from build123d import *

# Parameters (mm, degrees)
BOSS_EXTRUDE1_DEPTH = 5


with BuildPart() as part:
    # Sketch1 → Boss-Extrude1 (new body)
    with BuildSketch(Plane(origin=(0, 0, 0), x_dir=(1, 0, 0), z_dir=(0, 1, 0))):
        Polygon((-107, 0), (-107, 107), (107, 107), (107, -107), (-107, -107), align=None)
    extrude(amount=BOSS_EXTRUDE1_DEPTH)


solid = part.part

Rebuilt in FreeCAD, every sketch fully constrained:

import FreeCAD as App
import Part
import Sketcher
from FreeCAD import Vector
Q = App.Units.Quantity


def add_polygon(sketch, points):
    """Adds a closed chain of lines whose ends are joined by coincident constraints."""
    first, n = sketch.GeometryCount, len(points)
    for a, b in zip(points, points[1:] + points[:1]):
        sketch.addGeometry(Part.LineSegment(App.Vector(*a, 0), App.Vector(*b, 0)), False)
    for i in range(n):
        sketch.addConstraint(Sketcher.Constraint("Coincident", first + i, 2, first + (i + 1) % n, 1))

doc = App.newDocument("Part")
params = doc.addObject("Spreadsheet::Sheet", "Params")
for row, (alias, value) in enumerate([
    ("sketch1_width", "214 mm"),
    ("pad1_length", "5 mm"),
], start=1):
    params.set(f"A{row}", alias)
    params.set(f"B{row}", "=" + value)
    params.setAlias(f"B{row}", alias)

body = doc.addObject("PartDesign::Body", "Body")

# Sketch on XZ plane
sketch1 = doc.addObject("Sketcher::SketchObject", "Sketch")
body.addObject(sketch1)
sketch1.AttachmentSupport = (doc.XZ_Plane, [""])
sketch1.MapMode = "FlatFace"
add_polygon(sketch1, [(-107, -107), (-107, 107), (107, 107), (107, -107)])  # lines 0-3
sketch1.addConstraint(Sketcher.Constraint("Vertical", 0))
sketch1.addConstraint(Sketcher.Constraint("Horizontal", 1))
sketch1.addConstraint(Sketcher.Constraint("Vertical", 2))
sketch1.addConstraint(Sketcher.Constraint("Horizontal", 3))
sketch1.addConstraint(Sketcher.Constraint("Symmetric", 0, 2, 2, 2, -1, 1))
sketch1.addConstraint(Sketcher.Constraint("Equal", 3, 0))
sketch1.addConstraint(Sketcher.Constraint("DistanceX", 1, 1, 1, 2, Q("214 mm")))
sketch1.setExpression("Constraints[10]", "Params.sketch1_width")
pad1 = doc.addObject("PartDesign::Pad", "Pad")
body.addObject(pad1)
pad1.Profile = sketch1
pad1.setExpression("Length", "Params.pad1_length")
pad1.Reversed = True

doc.recompute()
